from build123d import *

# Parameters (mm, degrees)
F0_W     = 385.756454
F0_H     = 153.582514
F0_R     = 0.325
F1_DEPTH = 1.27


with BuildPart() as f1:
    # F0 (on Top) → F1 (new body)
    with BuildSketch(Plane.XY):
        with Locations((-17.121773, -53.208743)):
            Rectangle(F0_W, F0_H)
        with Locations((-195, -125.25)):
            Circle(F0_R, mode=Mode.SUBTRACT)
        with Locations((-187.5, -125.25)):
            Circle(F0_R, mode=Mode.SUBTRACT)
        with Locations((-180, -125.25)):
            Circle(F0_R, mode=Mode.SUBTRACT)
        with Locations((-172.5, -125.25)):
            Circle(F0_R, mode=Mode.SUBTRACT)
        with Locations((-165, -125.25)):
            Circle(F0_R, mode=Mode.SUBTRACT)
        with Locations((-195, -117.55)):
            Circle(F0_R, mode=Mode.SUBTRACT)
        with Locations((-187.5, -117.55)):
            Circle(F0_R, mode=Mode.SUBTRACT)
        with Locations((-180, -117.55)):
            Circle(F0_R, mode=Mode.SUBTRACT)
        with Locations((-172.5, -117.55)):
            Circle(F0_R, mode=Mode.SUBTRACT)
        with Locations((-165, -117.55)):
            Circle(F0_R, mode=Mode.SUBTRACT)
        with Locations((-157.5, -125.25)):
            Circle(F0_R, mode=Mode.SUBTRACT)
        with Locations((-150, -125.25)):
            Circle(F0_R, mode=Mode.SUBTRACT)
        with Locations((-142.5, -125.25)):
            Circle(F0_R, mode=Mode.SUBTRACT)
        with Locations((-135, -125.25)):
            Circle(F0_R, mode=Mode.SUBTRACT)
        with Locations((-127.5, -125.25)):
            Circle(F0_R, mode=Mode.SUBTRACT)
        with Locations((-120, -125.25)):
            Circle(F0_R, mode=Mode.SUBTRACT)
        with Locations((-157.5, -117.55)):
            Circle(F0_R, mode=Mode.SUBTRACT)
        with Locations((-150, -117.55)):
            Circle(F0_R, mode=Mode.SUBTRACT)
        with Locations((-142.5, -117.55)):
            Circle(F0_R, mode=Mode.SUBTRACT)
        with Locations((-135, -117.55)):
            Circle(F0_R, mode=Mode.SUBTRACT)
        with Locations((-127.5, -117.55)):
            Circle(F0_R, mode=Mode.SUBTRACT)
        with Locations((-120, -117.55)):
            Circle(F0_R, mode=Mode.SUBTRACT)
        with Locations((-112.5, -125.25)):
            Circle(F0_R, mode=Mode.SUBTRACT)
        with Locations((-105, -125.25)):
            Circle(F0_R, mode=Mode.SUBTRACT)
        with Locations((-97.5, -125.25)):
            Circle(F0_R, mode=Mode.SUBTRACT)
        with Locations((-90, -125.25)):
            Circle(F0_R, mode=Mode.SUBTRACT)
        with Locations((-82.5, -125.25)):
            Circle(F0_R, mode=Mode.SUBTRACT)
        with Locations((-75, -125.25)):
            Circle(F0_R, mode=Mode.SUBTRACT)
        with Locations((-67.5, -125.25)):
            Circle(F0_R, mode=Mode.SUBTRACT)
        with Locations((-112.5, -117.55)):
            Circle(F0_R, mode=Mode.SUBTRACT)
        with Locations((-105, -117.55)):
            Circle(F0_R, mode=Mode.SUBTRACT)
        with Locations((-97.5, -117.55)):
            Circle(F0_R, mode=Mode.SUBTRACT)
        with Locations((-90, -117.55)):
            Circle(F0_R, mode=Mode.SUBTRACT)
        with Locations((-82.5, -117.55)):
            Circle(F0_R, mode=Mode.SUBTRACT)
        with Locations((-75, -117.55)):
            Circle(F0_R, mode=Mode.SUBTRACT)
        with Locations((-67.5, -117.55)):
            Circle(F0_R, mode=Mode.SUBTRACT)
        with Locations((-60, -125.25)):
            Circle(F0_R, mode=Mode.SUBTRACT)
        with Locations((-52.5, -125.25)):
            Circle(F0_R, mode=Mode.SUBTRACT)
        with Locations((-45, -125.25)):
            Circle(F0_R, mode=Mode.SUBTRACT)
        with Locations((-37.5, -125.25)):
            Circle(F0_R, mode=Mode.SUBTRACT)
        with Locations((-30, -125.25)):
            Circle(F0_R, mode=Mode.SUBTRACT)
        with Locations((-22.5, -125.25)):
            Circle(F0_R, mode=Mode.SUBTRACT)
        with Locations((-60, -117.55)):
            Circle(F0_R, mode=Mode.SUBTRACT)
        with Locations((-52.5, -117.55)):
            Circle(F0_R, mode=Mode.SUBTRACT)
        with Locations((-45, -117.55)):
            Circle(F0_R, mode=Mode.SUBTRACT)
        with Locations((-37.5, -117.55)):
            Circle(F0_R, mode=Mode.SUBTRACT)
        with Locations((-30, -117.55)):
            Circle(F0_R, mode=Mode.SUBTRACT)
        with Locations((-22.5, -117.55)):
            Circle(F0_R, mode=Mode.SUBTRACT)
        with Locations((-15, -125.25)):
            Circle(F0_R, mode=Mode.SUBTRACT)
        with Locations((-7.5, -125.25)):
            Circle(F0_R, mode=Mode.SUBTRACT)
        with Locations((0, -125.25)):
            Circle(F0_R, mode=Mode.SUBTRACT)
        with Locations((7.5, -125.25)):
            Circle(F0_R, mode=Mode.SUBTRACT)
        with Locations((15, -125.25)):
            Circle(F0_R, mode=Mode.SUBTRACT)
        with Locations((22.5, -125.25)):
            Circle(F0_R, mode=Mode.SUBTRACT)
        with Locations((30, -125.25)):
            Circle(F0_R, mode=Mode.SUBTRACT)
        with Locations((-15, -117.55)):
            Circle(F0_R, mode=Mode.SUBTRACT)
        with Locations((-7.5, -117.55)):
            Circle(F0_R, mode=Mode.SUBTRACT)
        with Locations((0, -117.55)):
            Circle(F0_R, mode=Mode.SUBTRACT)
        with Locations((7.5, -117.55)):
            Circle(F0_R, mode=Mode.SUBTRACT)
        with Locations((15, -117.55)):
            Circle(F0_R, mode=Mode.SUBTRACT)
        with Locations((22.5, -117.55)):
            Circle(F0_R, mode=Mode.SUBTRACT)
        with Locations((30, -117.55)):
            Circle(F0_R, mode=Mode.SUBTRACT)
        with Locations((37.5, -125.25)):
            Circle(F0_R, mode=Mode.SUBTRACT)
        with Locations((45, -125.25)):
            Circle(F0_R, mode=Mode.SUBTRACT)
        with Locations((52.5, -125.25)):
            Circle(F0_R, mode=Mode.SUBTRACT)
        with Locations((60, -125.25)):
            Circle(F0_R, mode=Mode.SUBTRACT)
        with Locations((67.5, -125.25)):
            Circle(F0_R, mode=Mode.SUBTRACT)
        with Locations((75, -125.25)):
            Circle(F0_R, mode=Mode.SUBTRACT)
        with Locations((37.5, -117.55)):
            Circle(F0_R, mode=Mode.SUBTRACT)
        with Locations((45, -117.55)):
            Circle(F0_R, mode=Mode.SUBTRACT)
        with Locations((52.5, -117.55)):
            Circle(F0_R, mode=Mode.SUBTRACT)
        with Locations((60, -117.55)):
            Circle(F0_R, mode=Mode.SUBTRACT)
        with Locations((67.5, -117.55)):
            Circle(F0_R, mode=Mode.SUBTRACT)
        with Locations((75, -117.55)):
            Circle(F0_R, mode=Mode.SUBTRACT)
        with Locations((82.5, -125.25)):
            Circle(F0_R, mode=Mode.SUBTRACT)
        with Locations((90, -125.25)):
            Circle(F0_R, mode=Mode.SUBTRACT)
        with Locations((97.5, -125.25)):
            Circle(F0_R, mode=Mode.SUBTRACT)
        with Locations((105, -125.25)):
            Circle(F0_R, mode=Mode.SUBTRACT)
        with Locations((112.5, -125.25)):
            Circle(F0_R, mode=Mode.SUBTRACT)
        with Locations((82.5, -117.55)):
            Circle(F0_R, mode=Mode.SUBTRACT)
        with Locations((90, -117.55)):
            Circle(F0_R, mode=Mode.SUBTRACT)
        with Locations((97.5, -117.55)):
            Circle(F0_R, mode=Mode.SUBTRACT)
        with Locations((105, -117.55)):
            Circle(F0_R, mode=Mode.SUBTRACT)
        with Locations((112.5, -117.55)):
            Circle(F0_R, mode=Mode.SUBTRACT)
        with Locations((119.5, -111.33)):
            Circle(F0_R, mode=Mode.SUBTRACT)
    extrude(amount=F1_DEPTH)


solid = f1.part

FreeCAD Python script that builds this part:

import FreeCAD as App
import Part
import Sketcher


def add_polygon(sketch, points):
    """Adds a closed chain of lines whose ends are joined by coincident constraints."""
    first, n = sketch.GeometryCount, len(points)
    for a, b in zip(points, points[1:] + points[:1]):
        sketch.addGeometry(Part.LineSegment(App.Vector(*a, 0), App.Vector(*b, 0)), False)
    for i in range(n):
        sketch.addConstraint(Sketcher.Constraint("Coincident", first + i, 2, first + (i + 1) % n, 1))

doc = App.newDocument("Part")
params = doc.addObject("Spreadsheet::Sheet", "Params")
for row, (alias, value) in enumerate([
    ("pad1_length", "0.05 in"),
], start=1):
    params.set(f"A{row}", alias)
    params.set(f"B{row}", "=" + value)
    params.setAlias(f"B{row}", alias)

body = doc.addObject("PartDesign::Body", "Body")

sketch1 = doc.addObject("Sketcher::SketchObject", "Sketch")
body.addObject(sketch1)
sketch1.AttachmentSupport = (doc.XY_Plane, [""])
sketch1.MapMode = "FlatFace"
add_polygon(sketch1, [(-210, 23.58), (-210, -130), (175.76, -130), (175.76, 23.58)])
sketch1.addGeometry(Part.Circle(App.Vector(-195, -125.25, 0), App.Vector(0, 0, 1), 0.33), False)
sketch1.addGeometry(Part.Circle(App.Vector(-187.5, -125.25, 0), App.Vector(0, 0, 1), 0.33), False)
sketch1.addGeometry(Part.Circle(App.Vector(-180, -125.25, 0), App.Vector(0, 0, 1), 0.33), False)
sketch1.addGeometry(Part.Circle(App.Vector(-172.5, -125.25, 0), App.Vector(0, 0, 1), 0.33), False)
sketch1.addGeometry(Part.Circle(App.Vector(-165, -125.25, 0), App.Vector(0, 0, 1), 0.33), False)
sketch1.addGeometry(Part.Circle(App.Vector(-157.5, -125.25, 0), App.Vector(0, 0, 1), 0.33), False)
sketch1.addGeometry(Part.Circle(App.Vector(-150, -125.25, 0), App.Vector(0, 0, 1), 0.33), False)
sketch1.addGeometry(Part.Circle(App.Vector(-142.5, -125.25, 0), App.Vector(0, 0, 1), 0.33), False)
sketch1.addGeometry(Part.Circle(App.Vector(-135, -125.25, 0), App.Vector(0, 0, 1), 0.33), False)
sketch1.addGeometry(Part.Circle(App.Vector(-127.5, -125.25, 0), App.Vector(0, 0, 1), 0.33), False)
sketch1.addGeometry(Part.Circle(App.Vector(-120, -125.25, 0), App.Vector(0, 0, 1), 0.33), False)
sketch1.addGeometry(Part.Circle(App.Vector(-112.5, -125.25, 0), App.Vector(0, 0, 1), 0.33), False)
sketch1.addGeometry(Part.Circle(App.Vector(-105, -125.25, 0), App.Vector(0, 0, 1), 0.33), False)
sketch1.addGeometry(Part.Circle(App.Vector(-97.5, -125.25, 0), App.Vector(0, 0, 1), 0.33), False)
sketch1.addGeometry(Part.Circle(App.Vector(-90, -125.25, 0), App.Vector(0, 0, 1), 0.33), False)
sketch1.addGeometry(Part.Circle(App.Vector(-82.5, -125.25, 0), App.Vector(0, 0, 1), 0.33), False)
sketch1.addGeometry(Part.Circle(App.Vector(-75, -125.25, 0), App.Vector(0, 0, 1), 0.33), False)
sketch1.addGeometry(Part.Circle(App.Vector(-67.5, -125.25, 0), App.Vector(0, 0, 1), 0.33), False)
sketch1.addGeometry(Part.Circle(App.Vector(-60, -125.25, 0), App.Vector(0, 0, 1), 0.33), False)
sketch1.addGeometry(Part.Circle(App.Vector(-52.5, -125.25, 0), App.Vector(0, 0, 1), 0.33), False)
sketch1.addGeometry(Part.Circle(App.Vector(-45, -125.25, 0), App.Vector(0, 0, 1), 0.33), False)
sketch1.addGeometry(Part.Circle(App.Vector(-37.5, -125.25, 0), App.Vector(0, 0, 1), 0.33), False)
sketch1.addGeometry(Part.Circle(App.Vector(-30, -125.25, 0), App.Vector(0, 0, 1), 0.33), False)
sketch1.addGeometry(Part.Circle(App.Vector(-22.5, -125.25, 0), App.Vector(0, 0, 1), 0.33), False)
sketch1.addGeometry(Part.Circle(App.Vector(-15, -125.25, 0), App.Vector(0, 0, 1), 0.33), False)
sketch1.addGeometry(Part.Circle(App.Vector(-7.5, -125.25, 0), App.Vector(0, 0, 1), 0.33), False)
sketch1.addGeometry(Part.Circle(App.Vector(0, -125.25, 0), App.Vector(0, 0, 1), 0.33), False)
sketch1.addGeometry(Part.Circle(App.Vector(7.5, -125.25, 0), App.Vector(0, 0, 1), 0.33), False)
sketch1.addGeometry(Part.Circle(App.Vector(15, -125.25, 0), App.Vector(0, 0, 1), 0.33), False)
sketch1.addGeometry(Part.Circle(App.Vector(22.5, -125.25, 0), App.Vector(0, 0, 1), 0.33), False)
sketch1.addGeometry(Part.Circle(App.Vector(30, -125.25, 0), App.Vector(0, 0, 1), 0.33), False)
sketch1.addGeometry(Part.Circle(App.Vector(37.5, -125.25, 0), App.Vector(0, 0, 1), 0.33), False)
sketch1.addGeometry(Part.Circle(App.Vector(45, -125.25, 0), App.Vector(0, 0, 1), 0.33), False)
sketch1.addGeometry(Part.Circle(App.Vector(52.5, -125.25, 0), App.Vector(0, 0, 1), 0.33), False)
sketch1.addGeometry(Part.Circle(App.Vector(60, -125.25, 0), App.Vector(0, 0, 1), 0.33), False)
sketch1.addGeometry(Part.Circle(App.Vector(67.5, -125.25, 0), App.Vector(0, 0, 1), 0.33), False)
sketch1.addGeometry(Part.Circle(App.Vector(75, -125.25, 0), App.Vector(0, 0, 1), 0.33), False)
sketch1.addGeometry(Part.Circle(App.Vector(82.5, -125.25, 0), App.Vector(0, 0, 1), 0.33), False)
sketch1.addGeometry(Part.Circle(App.Vector(90, -125.25, 0), App.Vector(0, 0, 1), 0.33), False)
sketch1.addGeometry(Part.Circle(App.Vector(97.5, -125.25, 0), App.Vector(0, 0, 1), 0.33), False)
sketch1.addGeometry(Part.Circle(App.Vector(105, -125.25, 0), App.Vector(0, 0, 1), 0.33), False)
sketch1.addGeometry(Part.Circle(App.Vector(112.5, -125.25, 0), App.Vector(0, 0, 1), 0.33), False)
sketch1.addGeometry(Part.Circle(App.Vector(-195, -117.55, 0), App.Vector(0, 0, 1), 0.33), False)
sketch1.addGeometry(Part.Circle(App.Vector(-187.5, -117.55, 0), App.Vector(0, 0, 1), 0.33), False)
sketch1.addGeometry(Part.Circle(App.Vector(-180, -117.55, 0), App.Vector(0, 0, 1), 0.33), False)
sketch1.addGeometry(Part.Circle(App.Vector(-172.5, -117.55, 0), App.Vector(0, 0, 1), 0.33), False)
sketch1.addGeometry(Part.Circle(App.Vector(-165, -117.55, 0), App.Vector(0, 0, 1), 0.33), False)
sketch1.addGeometry(Part.Circle(App.Vector(-157.5, -117.55, 0), App.Vector(0, 0, 1), 0.33), False)
sketch1.addGeometry(Part.Circle(App.Vector(-150, -117.55, 0), App.Vector(0, 0, 1), 0.33), False)
sketch1.addGeometry(Part.Circle(App.Vector(-142.5, -117.55, 0), App.Vector(0, 0, 1), 0.33), False)
sketch1.addGeometry(Part.Circle(App.Vector(-135, -117.55, 0), App.Vector(0, 0, 1), 0.33), False)
sketch1.addGeometry(Part.Circle(App.Vector(-127.5, -117.55, 0), App.Vector(0, 0, 1), 0.33), False)
sketch1.addGeometry(Part.Circle(App.Vector(-120, -117.55, 0), App.Vector(0, 0, 1), 0.33), False)
sketch1.addGeometry(Part.Circle(App.Vector(-112.5, -117.55, 0), App.Vector(0, 0, 1), 0.33), False)
sketch1.addGeometry(Part.Circle(App.Vector(-105, -117.55, 0), App.Vector(0, 0, 1), 0.33), False)
sketch1.addGeometry(Part.Circle(App.Vector(-97.5, -117.55, 0), App.Vector(0, 0, 1), 0.33), False)
sketch1.addGeometry(Part.Circle(App.Vector(-90, -117.55, 0), App.Vector(0, 0, 1), 0.33), False)
sketch1.addGeometry(Part.Circle(App.Vector(-82.5, -117.55, 0), App.Vector(0, 0, 1), 0.33), False)
sketch1.addGeometry(Part.Circle(App.Vector(-75, -117.55, 0), App.Vector(0, 0, 1), 0.33), False)
sketch1.addGeometry(Part.Circle(App.Vector(-67.5, -117.55, 0), App.Vector(0, 0, 1), 0.33), False)
sketch1.addGeometry(Part.Circle(App.Vector(-60, -117.55, 0), App.Vector(0, 0, 1), 0.33), False)
sketch1.addGeometry(Part.Circle(App.Vector(-52.5, -117.55, 0), App.Vector(0, 0, 1), 0.33), False)
sketch1.addGeometry(Part.Circle(App.Vector(-45, -117.55, 0), App.Vector(0, 0, 1), 0.33), False)
sketch1.addGeometry(Part.Circle(App.Vector(-37.5, -117.55, 0), App.Vector(0, 0, 1), 0.33), False)
sketch1.addGeometry(Part.Circle(App.Vector(-30, -117.55, 0), App.Vector(0, 0, 1), 0.33), False)
sketch1.addGeometry(Part.Circle(App.Vector(-22.5, -117.55, 0), App.Vector(0, 0, 1), 0.33), False)
sketch1.addGeometry(Part.Circle(App.Vector(-15, -117.55, 0), App.Vector(0, 0, 1), 0.33), False)
sketch1.addGeometry(Part.Circle(App.Vector(-7.5, -117.55, 0), App.Vector(0, 0, 1), 0.33), False)
sketch1.addGeometry(Part.Circle(App.Vector(0, -117.55, 0), App.Vector(0, 0, 1), 0.33), False)
sketch1.addGeometry(Part.Circle(App.Vector(7.5, -117.55, 0), App.Vector(0, 0, 1), 0.33), False)
sketch1.addGeometry(Part.Circle(App.Vector(15, -117.55, 0), App.Vector(0, 0, 1), 0.33), False)
sketch1.addGeometry(Part.Circle(App.Vector(22.5, -117.55, 0), App.Vector(0, 0, 1), 0.33), False)
sketch1.addGeometry(Part.Circle(App.Vector(30, -117.55, 0), App.Vector(0, 0, 1), 0.33), False)
sketch1.addGeometry(Part.Circle(App.Vector(37.5, -117.55, 0), App.Vector(0, 0, 1), 0.33), False)
sketch1.addGeometry(Part.Circle(App.Vector(45, -117.55, 0), App.Vector(0, 0, 1), 0.33), False)
sketch1.addGeometry(Part.Circle(App.Vector(52.5, -117.55, 0), App.Vector(0, 0, 1), 0.33), False)
sketch1.addGeometry(Part.Circle(App.Vector(60, -117.55, 0), App.Vector(0, 0, 1), 0.33), False)
sketch1.addGeometry(Part.Circle(App.Vector(67.5, -117.55, 0), App.Vector(0, 0, 1), 0.33), False)
sketch1.addGeometry(Part.Circle(App.Vector(75, -117.55, 0), App.Vector(0, 0, 1), 0.33), False)
sketch1.addGeometry(Part.Circle(App.Vector(82.5, -117.55, 0), App.Vector(0, 0, 1), 0.33), False)
sketch1.addGeometry(Part.Circle(App.Vector(90, -117.55, 0), App.Vector(0, 0, 1), 0.33), False)
sketch1.addGeometry(Part.Circle(App.Vector(97.5, -117.55, 0), App.Vector(0, 0, 1), 0.33), False)
sketch1.addGeometry(Part.Circle(App.Vector(105, -117.55, 0), App.Vector(0, 0, 1), 0.33), False)
sketch1.addGeometry(Part.Circle(App.Vector(112.5, -117.55, 0), App.Vector(0, 0, 1), 0.33), False)
sketch1.addGeometry(Part.Circle(App.Vector(119.5, -111.33, 0), App.Vector(0, 0, 1), 0.33), False)
sketch1.addConstraint(Sketcher.Constraint("Vertical", 0))
sketch1.addConstraint(Sketcher.Constraint("Horizontal", 1))
sketch1.addConstraint(Sketcher.Constraint("Vertical", 2))
sketch1.addConstraint(Sketcher.Constraint("Horizontal", 3))
sketch1.addConstraint(Sketcher.Constraint("Equal", 4, 5))
sketch1.addConstraint(Sketcher.Constraint("Equal", 5, 6))
sketch1.addConstraint(Sketcher.Constraint("Equal", 6, 7))
sketch1.addConstraint(Sketcher.Constraint("Equal", 7, 8))
sketch1.addConstraint(Sketcher.Constraint("Equal", 8, 9))
sketch1.addConstraint(Sketcher.Constraint("Equal", 9, 10))
sketch1.addConstraint(Sketcher.Constraint("Equal", 10, 11))
sketch1.addConstraint(Sketcher.Constraint("Equal", 11, 12))
sketch1.addConstraint(Sketcher.Constraint("Equal", 12, 13))
sketch1.addConstraint(Sketcher.Constraint("Equal", 13, 14))
sketch1.addConstraint(Sketcher.Constraint("Equal", 14, 15))
sketch1.addConstraint(Sketcher.Constraint("Equal", 15, 16))
sketch1.addConstraint(Sketcher.Constraint("Equal", 16, 17))
sketch1.addConstraint(Sketcher.Constraint("Equal", 17, 18))
sketch1.addConstraint(Sketcher.Constraint("Equal", 18, 19))
sketch1.addConstraint(Sketcher.Constraint("Equal", 19, 20))
sketch1.addConstraint(Sketcher.Constraint("Equal", 20, 21))
sketch1.addConstraint(Sketcher.Constraint("Equal", 21, 22))
sketch1.addConstraint(Sketcher.Constraint("Equal", 22, 23))
sketch1.addConstraint(Sketcher.Constraint("Equal", 23, 24))
sketch1.addConstraint(Sketcher.Constraint("Equal", 24, 25))
sketch1.addConstraint(Sketcher.Constraint("Equal", 25, 26))
sketch1.addConstraint(Sketcher.Constraint("Equal", 26, 27))
sketch1.addConstraint(Sketcher.Constraint("Equal", 27, 28))
sketch1.addConstraint(Sketcher.Constraint("Equal", 28, 29))
sketch1.addConstraint(Sketcher.Constraint("Equal", 29, 30))
sketch1.addConstraint(Sketcher.Constraint("Equal", 30, 31))
sketch1.addConstraint(Sketcher.Constraint("Equal", 31, 32))
sketch1.addConstraint(Sketcher.Constraint("Equal", 32, 33))
sketch1.addConstraint(Sketcher.Constraint("Equal", 33, 34))
sketch1.addConstraint(Sketcher.Constraint("Equal", 34, 35))
sketch1.addConstraint(Sketcher.Constraint("Equal", 35, 36))
sketch1.addConstraint(Sketcher.Constraint("Equal", 36, 37))
sketch1.addConstraint(Sketcher.Constraint("Equal", 37, 38))
sketch1.addConstraint(Sketcher.Constraint("Equal", 38, 39))
sketch1.addConstraint(Sketcher.Constraint("Equal", 39, 40))
sketch1.addConstraint(Sketcher.Constraint("Equal", 40, 41))
sketch1.addConstraint(Sketcher.Constraint("Equal", 41, 42))
sketch1.addConstraint(Sketcher.Constraint("Equal", 42, 43))
sketch1.addConstraint(Sketcher.Constraint("Equal", 43, 44))
sketch1.addConstraint(Sketcher.Constraint("Equal", 44, 45))
sketch1.addConstraint(Sketcher.Constraint("Equal", 45, 46))
sketch1.addConstraint(Sketcher.Constraint("Equal", 46, 47))
sketch1.addConstraint(Sketcher.Constraint("Equal", 47, 48))
sketch1.addConstraint(Sketcher.Constraint("Equal", 48, 49))
sketch1.addConstraint(Sketcher.Constraint("Equal", 49, 50))
sketch1.addConstraint(Sketcher.Constraint("Equal", 50, 51))
sketch1.addConstraint(Sketcher.Constraint("Equal", 51, 52))
sketch1.addConstraint(Sketcher.Constraint("Equal", 52, 53))
sketch1.addConstraint(Sketcher.Constraint("Equal", 53, 54))
sketch1.addConstraint(Sketcher.Constraint("Equal", 54, 55))
sketch1.addConstraint(Sketcher.Constraint("Equal", 55, 56))
sketch1.addConstraint(Sketcher.Constraint("Equal", 56, 57))
sketch1.addConstraint(Sketcher.Constraint("Equal", 57, 58))
sketch1.addConstraint(Sketcher.Constraint("Equal", 58, 59))
sketch1.addConstraint(Sketcher.Constraint("Equal", 59, 60))
sketch1.addConstraint(Sketcher.Constraint("Equal", 60, 61))
sketch1.addConstraint(Sketcher.Constraint("Equal", 61, 62))
sketch1.addConstraint(Sketcher.Constraint("Equal", 62, 63))
sketch1.addConstraint(Sketcher.Constraint("Equal", 63, 64))
sketch1.addConstraint(Sketcher.Constraint("Equal", 64, 65))
sketch1.addConstraint(Sketcher.Constraint("Equal", 65, 66))
sketch1.addConstraint(Sketcher.Constraint("Equal", 66, 67))
sketch1.addConstraint(Sketcher.Constraint("Equal", 67, 68))
sketch1.addConstraint(Sketcher.Constraint("Equal", 68, 69))
sketch1.addConstraint(Sketcher.Constraint("Equal", 69, 70))
sketch1.addConstraint(Sketcher.Constraint("Equal", 70, 71))
sketch1.addConstraint(Sketcher.Constraint("Equal", 71, 72))
sketch1.addConstraint(Sketcher.Constraint("Equal", 72, 73))
sketch1.addConstraint(Sketcher.Constraint("Equal", 73, 74))
sketch1.addConstraint(Sketcher.Constraint("Equal", 74, 75))
sketch1.addConstraint(Sketcher.Constraint("Equal", 75, 76))
sketch1.addConstraint(Sketcher.Constraint("Equal", 76, 77))
sketch1.addConstraint(Sketcher.Constraint("Equal", 77, 78))
sketch1.addConstraint(Sketcher.Constraint("Equal", 78, 79))
sketch1.addConstraint(Sketcher.Constraint("Equal", 79, 80))
sketch1.addConstraint(Sketcher.Constraint("Equal", 80, 81))
sketch1.addConstraint(Sketcher.Constraint("Equal", 81, 82))
sketch1.addConstraint(Sketcher.Constraint("Equal", 82, 83))
sketch1.addConstraint(Sketcher.Constraint("Equal", 83, 84))
sketch1.addConstraint(Sketcher.Constraint("Equal", 84, 85))
sketch1.addConstraint(Sketcher.Constraint("Equal", 85, 86))
sketch1.addConstraint(Sketcher.Constraint("Equal", 86, 87))
sketch1.addConstraint(Sketcher.Constraint("Equal", 87, 88))
sketch1.addConstraint(Sketcher.Constraint("Symmetric", 29, 3, 31, 3, -2))
sketch1.addConstraint(Sketcher.Constraint("Symmetric", 28, 3, 32, 3, -2))
sketch1.addConstraint(Sketcher.Constraint("Symmetric", 27, 3, 33, 3, -2))
sketch1.addConstraint(Sketcher.Constraint("Symmetric", 26, 3, 34, 3, -2))
sketch1.addConstraint(Sketcher.Constraint("Symmetric", 25, 3, 35, 3, -2))
sketch1.addConstraint(Sketcher.Constraint("Symmetric", 24, 3, 36, 3, -2))
sketch1.addConstraint(Sketcher.Constraint("Symmetric", 23, 3, 37, 3, -2))
sketch1.addConstraint(Sketcher.Constraint("Symmetric", 22, 3, 38, 3, -2))
sketch1.addConstraint(Sketcher.Constraint("Symmetric", 21, 3, 39, 3, -2))
sketch1.addConstraint(Sketcher.Constraint("Symmetric", 20, 3, 40, 3, -2))
sketch1.addConstraint(Sketcher.Constraint("Symmetric", 19, 3, 41, 3, -2))
sketch1.addConstraint(Sketcher.Constraint("Symmetric", 18, 3, 42, 3, -2))
sketch1.addConstraint(Sketcher.Constraint("Symmetric", 17, 3, 43, 3, -2))
sketch1.addConstraint(Sketcher.Constraint("Symmetric", 16, 3, 44, 3, -2))
sketch1.addConstraint(Sketcher.Constraint("Symmetric", 15, 3, 45, 3, -2))
sketch1.addConstraint(Sketcher.Constraint("Symmetric", 71, 3, 73, 3, -2))
sketch1.addConstraint(Sketcher.Constraint("Symmetric", 70, 3, 74, 3, -2))
sketch1.addConstraint(Sketcher.Constraint("Symmetric", 69, 3, 75, 3, -2))
sketch1.addConstraint(Sketcher.Constraint("Symmetric", 68, 3, 76, 3, -2))
sketch1.addConstraint(Sketcher.Constraint("Symmetric", 67, 3, 77, 3, -2))
sketch1.addConstraint(Sketcher.Constraint("Symmetric", 66, 3, 78, 3, -2))
sketch1.addConstraint(Sketcher.Constraint("Symmetric", 65, 3, 79, 3, -2))
sketch1.addConstraint(Sketcher.Constraint("Symmetric", 64, 3, 80, 3, -2))
sketch1.addConstraint(Sketcher.Constraint("Symmetric", 63, 3, 81, 3, -2))
sketch1.addConstraint(Sketcher.Constraint("Symmetric", 62, 3, 82, 3, -2))
sketch1.addConstraint(Sketcher.Constraint("Symmetric", 61, 3, 83, 3, -2))
sketch1.addConstraint(Sketcher.Constraint("Symmetric", 60, 3, 84, 3, -2))
sketch1.addConstraint(Sketcher.Constraint("Symmetric", 59, 3, 85, 3, -2))
sketch1.addConstraint(Sketcher.Constraint("Symmetric", 58, 3, 86, 3, -2))
sketch1.addConstraint(Sketcher.Constraint("Symmetric", 57, 3, 87, 3, -2))
sketch1.addConstraint(Sketcher.Constraint("PointOnObject", 30, 3, -2))
sketch1.addConstraint(Sketcher.Constraint("PointOnObject", 72, 3, -2))
sketch1.addConstraint(Sketcher.Constraint("Horizontal", 4, 3, 5, 3))
sketch1.addConstraint(Sketcher.Constraint("Horizontal", 5, 3, 6, 3))
sketch1.addConstraint(Sketcher.Constraint("Horizontal", 6, 3, 7, 3))
sketch1.addConstraint(Sketcher.Constraint("Horizontal", 7, 3, 8, 3))
sketch1.addConstraint(Sketcher.Constraint("Horizontal", 8, 3, 9, 3))
sketch1.addConstraint(Sketcher.Constraint("Horizontal", 9, 3, 10, 3))
sketch1.addConstraint(Sketcher.Constraint("Horizontal", 10, 3, 11, 3))
sketch1.addConstraint(Sketcher.Constraint("Horizontal", 11, 3, 12, 3))
sketch1.addConstraint(Sketcher.Constraint("Horizontal", 12, 3, 13, 3))
sketch1.addConstraint(Sketcher.Constraint("Horizontal", 13, 3, 14, 3))
sketch1.addConstraint(Sketcher.Constraint("Horizontal", 14, 3, 15, 3))
sketch1.addConstraint(Sketcher.Constraint("Horizontal", 15, 3, 16, 3))
sketch1.addConstraint(Sketcher.Constraint("Horizontal", 16, 3, 17, 3))
sketch1.addConstraint(Sketcher.Constraint("Horizontal", 17, 3, 18, 3))
sketch1.addConstraint(Sketcher.Constraint("Horizontal", 18, 3, 19, 3))
sketch1.addConstraint(Sketcher.Constraint("Horizontal", 19, 3, 20, 3))
sketch1.addConstraint(Sketcher.Constraint("Horizontal", 20, 3, 21, 3))
sketch1.addConstraint(Sketcher.Constraint("Horizontal", 21, 3, 22, 3))
sketch1.addConstraint(Sketcher.Constraint("Horizontal", 22, 3, 23, 3))
sketch1.addConstraint(Sketcher.Constraint("Horizontal", 23, 3, 24, 3))
sketch1.addConstraint(Sketcher.Constraint("Horizontal", 24, 3, 25, 3))
sketch1.addConstraint(Sketcher.Constraint("Horizontal", 25, 3, 26, 3))
sketch1.addConstraint(Sketcher.Constraint("Horizontal", 26, 3, 27, 3))
sketch1.addConstraint(Sketcher.Constraint("Horizontal", 27, 3, 28, 3))
sketch1.addConstraint(Sketcher.Constraint("Horizontal", 28, 3, 29, 3))
sketch1.addConstraint(Sketcher.Constraint("Horizontal", 29, 3, 30, 3))
sketch1.addConstraint(Sketcher.Constraint("Horizontal", 46, 3, 47, 3))
sketch1.addConstraint(Sketcher.Constraint("Horizontal", 47, 3, 48, 3))
sketch1.addConstraint(Sketcher.Constraint("Horizontal", 48, 3, 49, 3))
sketch1.addConstraint(Sketcher.Constraint("Horizontal", 49, 3, 50, 3))
sketch1.addConstraint(Sketcher.Constraint("Horizontal", 50, 3, 51, 3))
sketch1.addConstraint(Sketcher.Constraint("Horizontal", 51, 3, 52, 3))
sketch1.addConstraint(Sketcher.Constraint("Horizontal", 52, 3, 53, 3))
sketch1.addConstraint(Sketcher.Constraint("Horizontal", 53, 3, 54, 3))
sketch1.addConstraint(Sketcher.Constraint("Horizontal", 54, 3, 55, 3))
sketch1.addConstraint(Sketcher.Constraint("Horizontal", 55, 3, 56, 3))
sketch1.addConstraint(Sketcher.Constraint("Horizontal", 56, 3, 57, 3))
sketch1.addConstraint(Sketcher.Constraint("Horizontal", 57, 3, 58, 3))
sketch1.addConstraint(Sketcher.Constraint("Horizontal", 58, 3, 59, 3))
sketch1.addConstraint(Sketcher.Constraint("Horizontal", 59, 3, 60, 3))
sketch1.addConstraint(Sketcher.Constraint("Horizontal", 60, 3, 61, 3))
sketch1.addConstraint(Sketcher.Constraint("Horizontal", 61, 3, 62, 3))
sketch1.addConstraint(Sketcher.Constraint("Horizontal", 62, 3, 63, 3))
sketch1.addConstraint(Sketcher.Constraint("Horizontal", 63, 3, 64, 3))
sketch1.addConstraint(Sketcher.Constraint("Horizontal", 64, 3, 65, 3))
sketch1.addConstraint(Sketcher.Constraint("Horizontal", 65, 3, 66, 3))
sketch1.addConstraint(Sketcher.Constraint("Horizontal", 66, 3, 67, 3))
sketch1.addConstraint(Sketcher.Constraint("Horizontal", 67, 3, 68, 3))
sketch1.addConstraint(Sketcher.Constraint("Horizontal", 68, 3, 69, 3))
sketch1.addConstraint(Sketcher.Constraint("Horizontal", 69, 3, 70, 3))
sketch1.addConstraint(Sketcher.Constraint("Horizontal", 70, 3, 71, 3))
sketch1.addConstraint(Sketcher.Constraint("Horizontal", 71, 3, 72, 3))
sketch1.addConstraint(Sketcher.Constraint("Vertical", 4, 3, 46, 3))
sketch1.addConstraint(Sketcher.Constraint("Vertical", 5, 3, 47, 3))
sketch1.addConstraint(Sketcher.Constraint("Vertical", 6, 3, 48, 3))
sketch1.addConstraint(Sketcher.Constraint("Vertical", 7, 3, 49, 3))
sketch1.addConstraint(Sketcher.Constraint("Vertical", 8, 3, 50, 3))
sketch1.addConstraint(Sketcher.Constraint("Vertical", 9, 3, 51, 3))
sketch1.addConstraint(Sketcher.Constraint("Vertical", 10, 3, 52, 3))
sketch1.addConstraint(Sketcher.Constraint("Vertical", 11, 3, 53, 3))
sketch1.addConstraint(Sketcher.Constraint("Vertical", 12, 3, 54, 3))
sketch1.addConstraint(Sketcher.Constraint("Vertical", 13, 3, 55, 3))
sketch1.addConstraint(Sketcher.Constraint("Vertical", 14, 3, 56, 3))
sketch1.addConstraint(Sketcher.Constraint("Vertical", 15, 3, 57, 3))
sketch1.addConstraint(Sketcher.Constraint("Vertical", 16, 3, 58, 3))
sketch1.addConstraint(Sketcher.Constraint("Vertical", 17, 3, 59, 3))
sketch1.addConstraint(Sketcher.Constraint("Vertical", 18, 3, 60, 3))
sketch1.addConstraint(Sketcher.Constraint("Vertical", 19, 3, 61, 3))
sketch1.addConstraint(Sketcher.Constraint("Vertical", 20, 3, 62, 3))
sketch1.addConstraint(Sketcher.Constraint("Vertical", 21, 3, 63, 3))
sketch1.addConstraint(Sketcher.Constraint("Vertical", 22, 3, 64, 3))
sketch1.addConstraint(Sketcher.Constraint("Vertical", 23, 3, 65, 3))
sketch1.addConstraint(Sketcher.Constraint("Vertical", 24, 3, 66, 3))
sketch1.addConstraint(Sketcher.Constraint("Vertical", 25, 3, 67, 3))
sketch1.addConstraint(Sketcher.Constraint("Vertical", 26, 3, 68, 3))
sketch1.addConstraint(Sketcher.Constraint("Vertical", 27, 3, 69, 3))
sketch1.addConstraint(Sketcher.Constraint("Vertical", 28, 3, 70, 3))
sketch1.addConstraint(Sketcher.Constraint("Vertical", 29, 3, 71, 3))
sketch1.addConstraint(Sketcher.Constraint("Diameter", 4, 0.65))
sketch1.addConstraint(Sketcher.Constraint("DistanceX", 4, 3, -1, 1, 195.0))
sketch1.addConstraint(Sketcher.Constraint("DistanceY", 4, 3, -1, 1, 125.25))
sketch1.addConstraint(Sketcher.Constraint("DistanceX", 5, 3, -1, 1, 187.5))
sketch1.addConstraint(Sketcher.Constraint("DistanceX", 6, 3, -1, 1, 180.0))
sketch1.addConstraint(Sketcher.Constraint("DistanceX", 7, 3, -1, 1, 172.5))
sketch1.addConstraint(Sketcher.Constraint("DistanceX", 8, 3, -1, 1, 165.0))
sketch1.addConstraint(Sketcher.Constraint("DistanceX", 9, 3, -1, 1, 157.5))
sketch1.addConstraint(Sketcher.Constraint("DistanceX", 10, 3, -1, 1, 150.0))
sketch1.addConstraint(Sketcher.Constraint("DistanceX", 11, 3, -1, 1, 142.5))
sketch1.addConstraint(Sketcher.Constraint("DistanceX", 12, 3, -1, 1, 135.0))
sketch1.addConstraint(Sketcher.Constraint("DistanceX", 13, 3, -1, 1, 127.5))
sketch1.addConstraint(Sketcher.Constraint("DistanceX", 14, 3, -1, 1, 120.0))
sketch1.addConstraint(Sketcher.Constraint("DistanceX", 15, 3, -1, 1, 112.5))
sketch1.addConstraint(Sketcher.Constraint("DistanceX", 16, 3, -1, 1, 105.0))
sketch1.addConstraint(Sketcher.Constraint("DistanceX", 17, 3, -1, 1, 97.5))
sketch1.addConstraint(Sketcher.Constraint("DistanceX", 18, 3, -1, 1, 90.0))
sketch1.addConstraint(Sketcher.Constraint("DistanceX", 19, 3, -1, 1, 82.5))
sketch1.addConstraint(Sketcher.Constraint("DistanceX", 20, 3, -1, 1, 75.0))
sketch1.addConstraint(Sketcher.Constraint("DistanceX", 21, 3, -1, 1, 67.5))
sketch1.addConstraint(Sketcher.Constraint("DistanceX", 22, 3, -1, 1, 60.0))
sketch1.addConstraint(Sketcher.Constraint("DistanceX", 23, 3, -1, 1, 52.5))
sketch1.addConstraint(Sketcher.Constraint("DistanceX", 24, 3, -1, 1, 45.0))
sketch1.addConstraint(Sketcher.Constraint("DistanceX", 25, 3, -1, 1, 37.5))
sketch1.addConstraint(Sketcher.Constraint("DistanceX", 26, 3, -1, 1, 30.0))
sketch1.addConstraint(Sketcher.Constraint("DistanceX", 27, 3, -1, 1, 22.5))
sketch1.addConstraint(Sketcher.Constraint("DistanceX", 28, 3, -1, 1, 15.0))
sketch1.addConstraint(Sketcher.Constraint("DistanceX", 29, 3, -1, 1, 7.5))
sketch1.addConstraint(Sketcher.Constraint("DistanceY", 46, 3, -1, 1, 117.55))
sketch1.addConstraint(Sketcher.Constraint("DistanceX", -1, 1, 88, 3, 119.5))
sketch1.addConstraint(Sketcher.Constraint("DistanceY", 88, 3, -1, 1, 111.33))
sketch1.addConstraint(Sketcher.Constraint("DistanceX", 0, 2, -1, 1, 210.0))
sketch1.addConstraint(Sketcher.Constraint("DistanceY", 0, 2, -1, 1, 130.0))
sketch1.addConstraint(Sketcher.Constraint("DistanceX", 1, 1, 1, 2, 385.756454))
sketch1.addConstraint(Sketcher.Constraint("DistanceY", 0, 2, 0, 1, 153.582514))
pad1 = doc.addObject("PartDesign::Pad", "Pad")
body.addObject(pad1)
pad1.Profile = sketch1
pad1.setExpression("Length", "Params.pad1_length")

doc.recompute()
